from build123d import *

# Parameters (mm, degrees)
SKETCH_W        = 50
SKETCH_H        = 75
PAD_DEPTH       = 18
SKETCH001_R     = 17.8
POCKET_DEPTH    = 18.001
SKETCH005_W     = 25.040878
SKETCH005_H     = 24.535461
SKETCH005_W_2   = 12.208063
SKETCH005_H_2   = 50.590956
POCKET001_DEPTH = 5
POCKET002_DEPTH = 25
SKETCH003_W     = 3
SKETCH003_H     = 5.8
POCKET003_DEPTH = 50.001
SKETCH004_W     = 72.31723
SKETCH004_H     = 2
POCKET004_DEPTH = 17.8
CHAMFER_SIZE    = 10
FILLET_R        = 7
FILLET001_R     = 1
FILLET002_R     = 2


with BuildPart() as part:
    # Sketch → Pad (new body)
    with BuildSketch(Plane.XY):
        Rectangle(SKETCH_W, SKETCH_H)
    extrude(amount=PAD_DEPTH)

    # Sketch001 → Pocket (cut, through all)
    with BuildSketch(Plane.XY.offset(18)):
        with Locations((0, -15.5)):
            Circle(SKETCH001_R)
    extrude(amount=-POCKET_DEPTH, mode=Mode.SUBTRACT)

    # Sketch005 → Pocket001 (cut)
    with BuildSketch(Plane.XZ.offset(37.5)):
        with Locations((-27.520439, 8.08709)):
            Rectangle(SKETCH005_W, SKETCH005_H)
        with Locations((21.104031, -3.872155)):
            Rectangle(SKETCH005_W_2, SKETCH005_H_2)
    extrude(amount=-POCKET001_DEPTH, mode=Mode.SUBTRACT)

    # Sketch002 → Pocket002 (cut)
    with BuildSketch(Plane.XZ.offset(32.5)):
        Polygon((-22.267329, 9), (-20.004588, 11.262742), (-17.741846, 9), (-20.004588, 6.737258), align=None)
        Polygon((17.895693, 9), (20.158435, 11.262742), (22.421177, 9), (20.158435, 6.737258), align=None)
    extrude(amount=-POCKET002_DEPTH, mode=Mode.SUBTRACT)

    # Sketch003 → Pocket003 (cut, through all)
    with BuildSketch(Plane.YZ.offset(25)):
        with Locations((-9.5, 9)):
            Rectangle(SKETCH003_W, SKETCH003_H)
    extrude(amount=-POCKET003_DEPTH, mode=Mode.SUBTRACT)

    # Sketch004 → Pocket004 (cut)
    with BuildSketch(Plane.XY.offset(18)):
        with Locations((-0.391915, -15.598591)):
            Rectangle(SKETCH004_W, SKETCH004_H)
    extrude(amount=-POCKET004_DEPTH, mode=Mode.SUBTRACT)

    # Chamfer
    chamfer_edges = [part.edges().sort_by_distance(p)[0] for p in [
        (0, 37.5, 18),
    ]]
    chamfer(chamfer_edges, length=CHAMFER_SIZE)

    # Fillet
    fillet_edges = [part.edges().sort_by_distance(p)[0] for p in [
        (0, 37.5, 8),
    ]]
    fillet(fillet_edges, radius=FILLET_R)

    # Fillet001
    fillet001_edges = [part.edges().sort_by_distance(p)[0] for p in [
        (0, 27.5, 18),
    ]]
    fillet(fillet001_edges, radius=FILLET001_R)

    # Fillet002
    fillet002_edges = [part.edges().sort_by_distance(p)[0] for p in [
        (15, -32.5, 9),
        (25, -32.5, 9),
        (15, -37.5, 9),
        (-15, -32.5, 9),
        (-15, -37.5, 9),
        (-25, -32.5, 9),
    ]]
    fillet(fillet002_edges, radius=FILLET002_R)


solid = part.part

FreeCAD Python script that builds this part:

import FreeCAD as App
import Part
import Sketcher

V = App.Vector


def edges_at(feature, points):
    """Names of the edges that pass closest to the given points."""
    edges = feature.Shape.Edges
    near = lambda p: min(range(len(edges)), key=lambda i: edges[i].distToShape(Part.Vertex(*p))[0])
    return sorted({f"Edge{near(p) + 1}" for p in points})

doc = App.newDocument("Part")
body = doc.addObject("PartDesign::Body", "Body")

sketch1 = body.newObject("Sketcher::SketchObject", "Sketch")
sketch1.AttachmentSupport = (doc.getObject("XY_Plane"), [""])
sketch1.MapMode = "FlatFace"
sketch1.addGeometry([
    Part.LineSegment(V(-25, 38, 0), V(-25, -38, 0)),
    Part.LineSegment(V(-25, -38, 0), V(25, -38, 0)),
    Part.LineSegment(V(25, -38, 0), V(25, 38, 0)),
    Part.LineSegment(V(25, 38, 0), V(-25, 38, 0)),
], False)
sketch1.addConstraint([
    Sketcher.Constraint("Coincident", 0, 2, 1, 1),
    Sketcher.Constraint("Coincident", 1, 2, 2, 1),
    Sketcher.Constraint("Coincident", 2, 2, 3, 1),
    Sketcher.Constraint("Coincident", 3, 2, 0, 1),
    Sketcher.Constraint("Vertical", 0),
    Sketcher.Constraint("Horizontal", 1),
    Sketcher.Constraint("Vertical", 2),
    Sketcher.Constraint("Horizontal", 3),
    Sketcher.Constraint("Symmetric", 0, 2, 2, 2, -1, 1),
    Sketcher.Constraint("DistanceX", 1, 1, 1, 2, 50.0),
    Sketcher.Constraint("DistanceY", 0, 2, 0, 1, 75.0),
])
pad1 = body.newObject("PartDesign::Pad", "Pad")
pad1.Profile = sketch1
pad1.Length = 18

sketch2 = body.newObject("Sketcher::SketchObject", "Sketch001")
sketch2.AttachmentSupport = (doc.getObject("XY_Plane"), [""])
sketch2.MapMode = "FlatFace"
sketch2.AttachmentOffset = App.Placement(V(0, 0, 18), App.Rotation())
sketch2.addGeometry(Part.Circle(V(0, -16, 0), V(0, 0, 1), 18), False)
sketch2.addConstraint([
    Sketcher.Constraint("PointOnObject", 0, 3, -2),
    Sketcher.Constraint("Diameter", 0, 35.6),
    Sketcher.Constraint("DistanceY", 0, 3, -1, 1, 15.5),
])
pocket1 = body.newObject("PartDesign::Pocket", "Pocket")
pocket1.Profile = sketch2
pocket1.Type = "ThroughAll"

sketch3 = body.newObject("Sketcher::SketchObject", "Sketch002")
sketch3.AttachmentSupport = (doc.getObject("XZ_Plane"), [""])
sketch3.MapMode = "FlatFace"
sketch3.AttachmentOffset = App.Placement(V(0, 0, 37.5), App.Rotation())
sketch3.addGeometry([
    Part.LineSegment(V(-40, 20, 0), V(-40, -4, 0)),
    Part.LineSegment(V(-40, -4, 0), V(-15, -4, 0)),
    Part.LineSegment(V(-15, -4, 0), V(-15, 20, 0)),
    Part.LineSegment(V(-15, 20, 0), V(-40, 20, 0)),
    Part.LineSegment(V(15, 21, 0), V(15, -29, 0)),
    Part.LineSegment(V(15, -29, 0), V(27, -29, 0)),
    Part.LineSegment(V(27, -29, 0), V(27, 21, 0)),
    Part.LineSegment(V(27, 21, 0), V(15, 21, 0)),
], False)
sketch3.addConstraint([
    Sketcher.Constraint("Coincident", 0, 2, 1, 1),
    Sketcher.Constraint("Coincident", 1, 2, 2, 1),
    Sketcher.Constraint("Coincident", 2, 2, 3, 1),
    Sketcher.Constraint("Coincident", 3, 2, 0, 1),
    Sketcher.Constraint("Coincident", 4, 2, 5, 1),
    Sketcher.Constraint("Coincident", 5, 2, 6, 1),
    Sketcher.Constraint("Coincident", 6, 2, 7, 1),
    Sketcher.Constraint("Coincident", 7, 2, 4, 1),
    Sketcher.Constraint("Vertical", 0),
    Sketcher.Constraint("Horizontal", 1),
    Sketcher.Constraint("Vertical", 2),
    Sketcher.Constraint("Horizontal", 3),
    Sketcher.Constraint("Vertical", 4),
    Sketcher.Constraint("Horizontal", 5),
    Sketcher.Constraint("Vertical", 6),
    Sketcher.Constraint("Horizontal", 7),
    Sketcher.Constraint("DistanceX", 1, 2, -1, 1, 15.0),
    Sketcher.Constraint("DistanceX", -1, 1, 4, 2, 14.999999),
    Sketcher.Constraint("DistanceY", 0, 2, 0, 1, 24.535461),
    Sketcher.Constraint("DistanceX", 1, 1, 1, 2, 25.040878),
    Sketcher.Constraint("DistanceX", 5, 1, 5, 2, 12.208063),
    Sketcher.Constraint("DistanceY", 4, 2, 4, 1, 50.590956),
    Sketcher.Constraint("DistanceY", 0, 2, -1, 1, 4.18064),
    Sketcher.Constraint("DistanceY", 4, 2, -1, 1, 29.167633),
])
pocket2 = body.newObject("PartDesign::Pocket", "Pocket001")
pocket2.Profile = sketch3
pocket2.Length = 5

sketch4 = body.newObject("Sketcher::SketchObject", "Sketch003")
sketch4.AttachmentSupport = (doc.getObject("XZ_Plane"), [""])
sketch4.MapMode = "FlatFace"
sketch4.AttachmentOffset = App.Placement(V(0, 0, 32.5), App.Rotation())
sketch4.addGeometry([
    Part.LineSegment(V(-20, 11.3, 0), V(-22.3, 9, 0)),
    Part.LineSegment(V(-22.3, 9, 0), V(-20, 6.7, 0)),
    Part.LineSegment(V(-20, 6.7, 0), V(-17.7, 9, 0)),
    Part.LineSegment(V(-17.7, 9, 0), V(-20, 11.3, 0)),
    Part.LineSegment(V(20.2, 11.3, 0), V(17.9, 9, 0)),
    Part.LineSegment(V(17.9, 9, 0), V(20.2, 6.7, 0)),
    Part.LineSegment(V(20.2, 6.7, 0), V(22.4, 9, 0)),
    Part.LineSegment(V(22.4, 9, 0), V(20.2, 11.3, 0)),
], False)
sketch4.addConstraint([
    Sketcher.Constraint("Coincident", 0, 2, 1, 1),
    Sketcher.Constraint("Coincident", 1, 2, 2, 1),
    Sketcher.Constraint("Coincident", 2, 2, 3, 1),
    Sketcher.Constraint("Coincident", 3, 2, 0, 1),
    Sketcher.Constraint("Coincident", 4, 2, 5, 1),
    Sketcher.Constraint("Coincident", 5, 2, 6, 1),
    Sketcher.Constraint("Coincident", 6, 2, 7, 1),
    Sketcher.Constraint("Coincident", 7, 2, 4, 1),
    Sketcher.Constraint("Perpendicular", 0, 1),
    Sketcher.Constraint("Perpendicular", 1, 2),
    Sketcher.Constraint("Perpendicular", 2, 3),
    Sketcher.Constraint("Perpendicular", 3, 4),
    Sketcher.Constraint("Perpendicular", 4, 5),
    Sketcher.Constraint("Perpendicular", 5, 6),
    Sketcher.Constraint("Perpendicular", 6, 7),
    Sketcher.Constraint("Horizontal", 0, 2, 2, 2),
    Sketcher.Constraint("Horizontal", 2, 2, 4, 2),
    Sketcher.Constraint("Horizontal", 1, 2, 5, 2),
    Sketcher.Constraint("Horizontal", 4, 2, 6, 2),
    Sketcher.Constraint("Vertical", 1, 2, 3, 2),
    Sketcher.Constraint("DistanceY", -1, 1, 0, 2, 9.0),
    Sketcher.Constraint("Distance", 0, 3.2),
    Sketcher.Constraint("DistanceX", 0, 2, -1, 1, 22.267329),
    Sketcher.Constraint("DistanceX", 2, 2, 4, 2, 35.637539),
])
pocket3 = body.newObject("PartDesign::Pocket", "Pocket002")
pocket3.Profile = sketch4
pocket3.Length = 25

sketch5 = body.newObject("Sketcher::SketchObject", "Sketch004")
sketch5.AttachmentSupport = (doc.getObject("YZ_Plane"), [""])
sketch5.MapMode = "FlatFace"
sketch5.AttachmentOffset = App.Placement(V(0, 0, 25), App.Rotation())
sketch5.addGeometry([
    Part.LineSegment(V(-11, 11.9, 0), V(-11, 6.1, 0)),
    Part.LineSegment(V(-11, 6.1, 0), V(-8, 6.1, 0)),
    Part.LineSegment(V(-8, 6.1, 0), V(-8, 11.9, 0)),
    Part.LineSegment(V(-8, 11.9, 0), V(-11, 11.9, 0)),
], False)
sketch5.addConstraint([
    Sketcher.Constraint("Coincident", 0, 2, 1, 1),
    Sketcher.Constraint("Coincident", 1, 2, 2, 1),
    Sketcher.Constraint("Coincident", 2, 2, 3, 1),
    Sketcher.Constraint("Coincident", 3, 2, 0, 1),
    Sketcher.Constraint("Vertical", 0),
    Sketcher.Constraint("Horizontal", 1),
    Sketcher.Constraint("Vertical", 2),
    Sketcher.Constraint("Horizontal", 3),
    Sketcher.Constraint("DistanceX", 1, 1, 1, 2, 3.0),
    Sketcher.Constraint("DistanceY", 0, 2, 0, 1, 5.8),
    Sketcher.Constraint("DistanceX", 0, 2, -1, 1, 11.0),
    Sketcher.Constraint("DistanceY", -1, 1, 0, 2, 6.1),
])
pocket4 = body.newObject("PartDesign::Pocket", "Pocket003")
pocket4.Profile = sketch5
pocket4.Type = "ThroughAll"

sketch6 = body.newObject("Sketcher::SketchObject", "Sketch005")
sketch6.AttachmentSupport = (doc.getObject("XY_Plane"), [""])
sketch6.MapMode = "FlatFace"
sketch6.AttachmentOffset = App.Placement(V(0, 0, 18), App.Rotation())
sketch6.addGeometry([
    Part.LineSegment(V(-36.6, -14.6, 0), V(-36.6, -16.6, 0)),
    Part.LineSegment(V(-36.6, -16.6, 0), V(35.8, -16.6, 0)),
    Part.LineSegment(V(35.8, -16.6, 0), V(35.8, -14.6, 0)),
    Part.LineSegment(V(35.8, -14.6, 0), V(-36.6, -14.6, 0)),
], False)
sketch6.addConstraint([
    Sketcher.Constraint("Coincident", 0, 2, 1, 1),
    Sketcher.Constraint("Coincident", 1, 2, 2, 1),
    Sketcher.Constraint("Coincident", 2, 2, 3, 1),
    Sketcher.Constraint("Coincident", 3, 2, 0, 1),
    Sketcher.Constraint("Vertical", 0),
    Sketcher.Constraint("Horizontal", 1),
    Sketcher.Constraint("Vertical", 2),
    Sketcher.Constraint("Horizontal", 3),
    Sketcher.Constraint("DistanceY", 0, 2, 0, 1, 2.0),
    Sketcher.Constraint("DistanceX", 1, 1, 1, 2, 72.31723),
    Sketcher.Constraint("DistanceX", -1, 1, 1, 2, 35.7667),
    Sketcher.Constraint("DistanceY", 0, 2, -1, 1, 16.598591),
])
pocket5 = body.newObject("PartDesign::Pocket", "Pocket004")
pocket5.Profile = sketch6
pocket5.Length = 17.8
doc.recompute()

chamfer = body.newObject("PartDesign::Chamfer", "Chamfer")
chamfer.Base = (pocket5, edges_at(pocket5, [(0, 37.5, 18)]))
chamfer.Size = 10
doc.recompute()

fillet = body.newObject("PartDesign::Fillet", "Fillet")
fillet.Base = (chamfer, edges_at(chamfer, [(0, 37.5, 8)]))
fillet.Radius = 7
doc.recompute()

fillet2 = body.newObject("PartDesign::Fillet", "Fillet001")
fillet2.Base = (fillet, edges_at(fillet, [(0, 27.5, 18)]))
fillet2.Radius = 1
doc.recompute()

fillet3 = body.newObject("PartDesign::Fillet", "Fillet002")
fillet3.Base = (fillet2, edges_at(fillet2, [
    (15, -32.5, 9),
    (25, -32.5, 9),
    (15, -37.5, 9),
    (-15, -32.5, 9),
    (-15, -37.5, 9),
    (-25, -32.5, 9),
]))
fillet3.Radius = 2

doc.recompute()
